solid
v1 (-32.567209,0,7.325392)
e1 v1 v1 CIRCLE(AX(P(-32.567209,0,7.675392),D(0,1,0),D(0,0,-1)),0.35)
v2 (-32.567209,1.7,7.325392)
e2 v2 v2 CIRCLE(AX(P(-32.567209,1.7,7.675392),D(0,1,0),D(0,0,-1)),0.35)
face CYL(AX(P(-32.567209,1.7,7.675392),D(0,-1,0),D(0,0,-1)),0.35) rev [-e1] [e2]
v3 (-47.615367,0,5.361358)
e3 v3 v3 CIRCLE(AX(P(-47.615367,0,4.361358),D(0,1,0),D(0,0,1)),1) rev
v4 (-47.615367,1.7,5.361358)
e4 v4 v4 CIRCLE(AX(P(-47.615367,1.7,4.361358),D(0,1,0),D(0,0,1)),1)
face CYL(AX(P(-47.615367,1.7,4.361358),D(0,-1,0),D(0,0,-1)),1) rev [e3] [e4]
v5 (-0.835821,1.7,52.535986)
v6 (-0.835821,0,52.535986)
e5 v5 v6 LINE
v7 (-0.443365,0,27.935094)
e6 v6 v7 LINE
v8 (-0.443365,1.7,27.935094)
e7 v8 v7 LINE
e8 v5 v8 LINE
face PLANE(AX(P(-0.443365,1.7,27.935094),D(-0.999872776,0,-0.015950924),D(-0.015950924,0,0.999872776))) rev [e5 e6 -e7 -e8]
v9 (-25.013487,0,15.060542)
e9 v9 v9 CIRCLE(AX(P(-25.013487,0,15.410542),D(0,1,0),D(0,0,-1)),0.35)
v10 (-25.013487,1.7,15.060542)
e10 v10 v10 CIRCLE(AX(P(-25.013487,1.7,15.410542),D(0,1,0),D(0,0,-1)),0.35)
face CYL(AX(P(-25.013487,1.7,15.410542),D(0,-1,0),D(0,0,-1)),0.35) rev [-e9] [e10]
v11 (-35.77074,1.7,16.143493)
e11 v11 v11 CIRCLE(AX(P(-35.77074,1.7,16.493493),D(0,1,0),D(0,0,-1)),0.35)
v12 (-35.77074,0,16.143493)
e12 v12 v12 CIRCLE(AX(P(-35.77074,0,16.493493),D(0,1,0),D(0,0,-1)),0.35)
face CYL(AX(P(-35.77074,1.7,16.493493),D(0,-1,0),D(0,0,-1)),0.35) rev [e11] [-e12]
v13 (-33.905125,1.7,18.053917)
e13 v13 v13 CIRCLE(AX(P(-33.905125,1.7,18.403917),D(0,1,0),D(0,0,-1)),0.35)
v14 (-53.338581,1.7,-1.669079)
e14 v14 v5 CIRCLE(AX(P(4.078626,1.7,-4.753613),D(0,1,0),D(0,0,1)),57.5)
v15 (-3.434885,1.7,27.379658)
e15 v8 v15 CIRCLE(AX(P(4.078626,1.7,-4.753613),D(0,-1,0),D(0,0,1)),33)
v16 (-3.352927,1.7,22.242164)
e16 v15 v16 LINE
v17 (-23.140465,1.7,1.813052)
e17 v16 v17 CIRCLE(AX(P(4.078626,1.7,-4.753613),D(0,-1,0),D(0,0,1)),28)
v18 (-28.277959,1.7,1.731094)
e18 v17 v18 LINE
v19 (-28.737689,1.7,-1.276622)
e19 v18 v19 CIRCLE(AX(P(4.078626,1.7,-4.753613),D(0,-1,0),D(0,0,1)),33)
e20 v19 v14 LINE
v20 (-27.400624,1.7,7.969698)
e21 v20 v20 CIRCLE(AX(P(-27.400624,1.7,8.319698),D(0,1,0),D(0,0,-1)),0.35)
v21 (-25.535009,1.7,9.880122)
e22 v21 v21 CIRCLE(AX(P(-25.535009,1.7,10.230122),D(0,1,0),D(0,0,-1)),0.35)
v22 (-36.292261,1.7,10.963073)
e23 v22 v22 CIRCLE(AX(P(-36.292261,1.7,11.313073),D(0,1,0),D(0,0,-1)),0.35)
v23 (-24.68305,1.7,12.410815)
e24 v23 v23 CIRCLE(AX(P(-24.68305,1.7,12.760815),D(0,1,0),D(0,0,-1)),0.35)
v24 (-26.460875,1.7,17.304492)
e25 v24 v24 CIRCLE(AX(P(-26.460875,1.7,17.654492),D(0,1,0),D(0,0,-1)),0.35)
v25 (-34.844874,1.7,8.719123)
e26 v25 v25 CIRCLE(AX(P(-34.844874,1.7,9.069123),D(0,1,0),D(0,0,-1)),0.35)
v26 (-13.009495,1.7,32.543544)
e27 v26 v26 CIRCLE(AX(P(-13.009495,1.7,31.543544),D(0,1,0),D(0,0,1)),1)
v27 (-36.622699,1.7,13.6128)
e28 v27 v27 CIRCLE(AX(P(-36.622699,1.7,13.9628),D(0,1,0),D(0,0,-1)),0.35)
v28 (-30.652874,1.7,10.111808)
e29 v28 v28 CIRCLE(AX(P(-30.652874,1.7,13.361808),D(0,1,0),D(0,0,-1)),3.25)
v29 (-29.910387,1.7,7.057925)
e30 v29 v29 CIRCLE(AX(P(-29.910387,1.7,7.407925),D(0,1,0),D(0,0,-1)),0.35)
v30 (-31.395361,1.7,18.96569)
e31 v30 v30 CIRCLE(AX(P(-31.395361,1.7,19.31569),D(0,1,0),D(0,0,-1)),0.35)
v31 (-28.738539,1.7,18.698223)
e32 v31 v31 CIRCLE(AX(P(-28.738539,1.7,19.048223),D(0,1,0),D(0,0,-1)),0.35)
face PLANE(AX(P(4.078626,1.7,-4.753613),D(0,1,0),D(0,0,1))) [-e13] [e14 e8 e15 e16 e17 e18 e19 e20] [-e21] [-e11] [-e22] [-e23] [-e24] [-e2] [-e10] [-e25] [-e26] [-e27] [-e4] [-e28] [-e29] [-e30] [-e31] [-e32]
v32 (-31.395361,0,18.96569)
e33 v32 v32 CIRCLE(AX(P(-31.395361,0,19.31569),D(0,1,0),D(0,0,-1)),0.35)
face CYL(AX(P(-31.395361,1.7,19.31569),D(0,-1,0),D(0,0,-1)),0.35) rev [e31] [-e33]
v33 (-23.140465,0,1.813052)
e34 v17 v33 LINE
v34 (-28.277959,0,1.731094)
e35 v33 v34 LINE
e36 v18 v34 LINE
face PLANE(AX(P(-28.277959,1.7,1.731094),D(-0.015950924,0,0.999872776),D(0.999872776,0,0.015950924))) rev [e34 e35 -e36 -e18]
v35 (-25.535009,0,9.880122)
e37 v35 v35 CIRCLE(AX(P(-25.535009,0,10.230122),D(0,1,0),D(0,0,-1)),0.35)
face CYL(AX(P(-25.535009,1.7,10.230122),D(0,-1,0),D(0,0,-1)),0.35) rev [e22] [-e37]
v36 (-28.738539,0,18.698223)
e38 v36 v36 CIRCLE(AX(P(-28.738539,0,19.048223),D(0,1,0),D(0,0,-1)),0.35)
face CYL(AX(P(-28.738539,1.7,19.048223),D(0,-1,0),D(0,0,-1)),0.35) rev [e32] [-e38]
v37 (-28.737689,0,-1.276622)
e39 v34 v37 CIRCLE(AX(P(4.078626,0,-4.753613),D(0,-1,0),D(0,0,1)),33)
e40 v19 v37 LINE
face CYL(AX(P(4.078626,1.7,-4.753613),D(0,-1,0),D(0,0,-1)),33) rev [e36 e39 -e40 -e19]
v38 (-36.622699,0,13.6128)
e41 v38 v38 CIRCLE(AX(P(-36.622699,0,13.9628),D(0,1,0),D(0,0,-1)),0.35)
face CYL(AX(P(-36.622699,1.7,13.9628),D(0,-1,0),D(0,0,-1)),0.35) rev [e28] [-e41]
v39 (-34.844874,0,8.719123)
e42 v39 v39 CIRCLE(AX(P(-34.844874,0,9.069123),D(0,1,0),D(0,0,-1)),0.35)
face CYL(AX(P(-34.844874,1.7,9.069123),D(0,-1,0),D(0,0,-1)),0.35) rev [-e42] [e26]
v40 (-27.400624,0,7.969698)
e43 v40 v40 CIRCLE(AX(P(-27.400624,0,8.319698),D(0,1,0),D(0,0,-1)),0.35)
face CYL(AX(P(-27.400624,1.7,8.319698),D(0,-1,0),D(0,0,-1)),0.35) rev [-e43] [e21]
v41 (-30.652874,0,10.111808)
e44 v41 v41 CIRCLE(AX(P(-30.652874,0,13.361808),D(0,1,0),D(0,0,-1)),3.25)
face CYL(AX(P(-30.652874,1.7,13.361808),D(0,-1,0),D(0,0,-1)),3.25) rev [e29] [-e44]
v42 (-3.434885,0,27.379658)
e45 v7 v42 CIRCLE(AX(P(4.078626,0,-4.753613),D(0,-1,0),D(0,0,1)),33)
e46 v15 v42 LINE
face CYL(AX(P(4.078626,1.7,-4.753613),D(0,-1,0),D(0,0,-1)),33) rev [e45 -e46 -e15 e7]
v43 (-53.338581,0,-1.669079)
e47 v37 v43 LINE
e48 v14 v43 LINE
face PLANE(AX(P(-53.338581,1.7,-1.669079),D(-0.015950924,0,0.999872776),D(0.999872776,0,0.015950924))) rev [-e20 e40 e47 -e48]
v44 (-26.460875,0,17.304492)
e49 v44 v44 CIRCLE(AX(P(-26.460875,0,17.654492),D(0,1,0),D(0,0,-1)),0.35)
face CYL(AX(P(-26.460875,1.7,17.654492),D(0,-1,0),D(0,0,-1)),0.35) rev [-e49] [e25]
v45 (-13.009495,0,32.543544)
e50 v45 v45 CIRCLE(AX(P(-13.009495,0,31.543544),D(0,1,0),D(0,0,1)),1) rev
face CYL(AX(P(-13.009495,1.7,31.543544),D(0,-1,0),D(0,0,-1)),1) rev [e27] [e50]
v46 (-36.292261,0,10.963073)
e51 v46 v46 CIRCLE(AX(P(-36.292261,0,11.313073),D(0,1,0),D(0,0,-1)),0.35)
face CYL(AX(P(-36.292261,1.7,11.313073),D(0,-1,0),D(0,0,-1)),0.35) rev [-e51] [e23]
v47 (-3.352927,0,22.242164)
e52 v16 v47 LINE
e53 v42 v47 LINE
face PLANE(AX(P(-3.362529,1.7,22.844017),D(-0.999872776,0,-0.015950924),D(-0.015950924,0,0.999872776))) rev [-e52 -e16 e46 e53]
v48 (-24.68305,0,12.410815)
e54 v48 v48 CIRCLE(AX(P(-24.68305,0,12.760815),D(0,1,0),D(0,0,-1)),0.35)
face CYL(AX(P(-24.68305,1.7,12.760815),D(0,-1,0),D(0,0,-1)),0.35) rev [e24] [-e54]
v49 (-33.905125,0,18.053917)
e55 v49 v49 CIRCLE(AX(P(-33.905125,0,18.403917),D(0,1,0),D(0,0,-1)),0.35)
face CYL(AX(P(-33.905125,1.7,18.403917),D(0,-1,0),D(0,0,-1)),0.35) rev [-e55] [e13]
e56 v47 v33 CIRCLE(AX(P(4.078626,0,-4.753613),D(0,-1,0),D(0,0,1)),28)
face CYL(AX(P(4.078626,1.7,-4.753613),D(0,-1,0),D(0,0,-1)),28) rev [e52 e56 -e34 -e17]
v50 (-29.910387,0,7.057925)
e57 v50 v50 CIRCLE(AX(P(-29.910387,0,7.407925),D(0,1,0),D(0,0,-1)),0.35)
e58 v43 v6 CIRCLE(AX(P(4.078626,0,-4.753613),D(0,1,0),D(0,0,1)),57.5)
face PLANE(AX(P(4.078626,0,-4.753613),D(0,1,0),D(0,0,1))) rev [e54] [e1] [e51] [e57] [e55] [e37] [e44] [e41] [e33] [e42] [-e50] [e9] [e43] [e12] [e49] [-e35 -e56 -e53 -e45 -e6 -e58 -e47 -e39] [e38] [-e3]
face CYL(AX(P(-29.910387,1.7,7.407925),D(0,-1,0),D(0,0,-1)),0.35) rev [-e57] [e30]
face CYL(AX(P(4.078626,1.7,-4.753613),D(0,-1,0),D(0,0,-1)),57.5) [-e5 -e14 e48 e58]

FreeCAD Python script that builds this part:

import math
import FreeCAD as App
import Part
import Sketcher
from FreeCAD import Vector
Q = App.Units.Quantity

doc = App.newDocument("Part")
body = doc.addObject("PartDesign::Body", "Body")

sketch1 = body.newObject("Sketcher::SketchObject", "Sketch")
sketch1.AttachmentSupport = (doc.getObject("XZ_Plane"), [""])
sketch1.MapMode = "FlatFace"
sketch1.addGeometry(Part.ArcOfCircle(Part.Circle(Vector(4.08, -4.75, 0), Vector(0, 0, 1), 33), math.radians(97.88), math.radians(103.16)), False)
sketch1.addGeometry(Part.LineSegment(Vector(-3.43, 27.38, 0), Vector(-3.35, 22.24, 0)), False)
sketch1.addGeometry(Part.ArcOfCircle(Part.Circle(Vector(4.08, -4.75, 0), Vector(0, 0, 1), 28), math.radians(105), math.radians(166)), False)
sketch1.addGeometry(Part.LineSegment(Vector(-23.14, 1.81, 0), Vector(-28.28, 1.73, 0)), False)
sketch1.addGeometry(Part.ArcOfCircle(Part.Circle(Vector(4.08, -4.75, 0), Vector(0, 0, 1), 33), math.radians(168.67), math.radians(173.95)), False)
sketch1.addGeometry(Part.LineSegment(Vector(-28.74, -1.28, 0), Vector(-53.34, -1.67, 0)), False)
sketch1.addGeometry(Part.ArcOfCircle(Part.Circle(Vector(4.08, -4.75, 0), Vector(0, 0, 1), 57.5), math.radians(95), math.radians(177)), False)
sketch1.addGeometry(Part.LineSegment(Vector(-0.84, 52.54, 0), Vector(-0.44, 27.94, 0)), False)
sketch1.addGeometry(Part.Circle(Vector(-26.46, 17.65, 0), Vector(0, 0, 1), 0.35), False)
sketch1.addGeometry(Part.Circle(Vector(-28.74, 19.05, 0), Vector(0, 0, 1), 0.35), False)
sketch1.addGeometry(Part.Circle(Vector(-25.01, 15.41, 0), Vector(0, 0, 1), 0.35), False)
sketch1.addGeometry(Part.Circle(Vector(-31.4, 19.32, 0), Vector(0, 0, 1), 0.35), False)
sketch1.addGeometry(Part.Circle(Vector(-33.91, 18.4, 0), Vector(0, 0, 1), 0.35), False)
sketch1.addGeometry(Part.Circle(Vector(-35.77, 16.49, 0), Vector(0, 0, 1), 0.35), False)
sketch1.addGeometry(Part.Circle(Vector(-30.65, 13.36, 0), Vector(0, 0, 1), 3.25), False)
sketch1.addGeometry(Part.Circle(Vector(-36.62, 13.96, 0), Vector(0, 0, 1), 0.35), False)
sketch1.addGeometry(Part.Circle(Vector(-24.68, 12.76, 0), Vector(0, 0, 1), 0.35), False)
sketch1.addGeometry(Part.Circle(Vector(-25.54, 10.23, 0), Vector(0, 0, 1), 0.35), False)
sketch1.addGeometry(Part.Circle(Vector(-27.4, 8.32, 0), Vector(0, 0, 1), 0.35), False)
sketch1.addGeometry(Part.Circle(Vector(-29.91, 7.41, 0), Vector(0, 0, 1), 0.35), False)
sketch1.addGeometry(Part.Circle(Vector(-36.29, 11.31, 0), Vector(0, 0, 1), 0.35), False)
sketch1.addGeometry(Part.Circle(Vector(-32.57, 7.68, 0), Vector(0, 0, 1), 0.35), False)
sketch1.addGeometry(Part.Circle(Vector(-34.84, 9.07, 0), Vector(0, 0, 1), 0.35), False)
sketch1.addConstraint(Sketcher.Constraint("Coincident", 0, 2, 1, 1))
sketch1.addConstraint(Sketcher.Constraint("Coincident", 1, 2, 2, 1))
sketch1.addConstraint(Sketcher.Constraint("Coincident", 2, 2, 3, 1))
sketch1.addConstraint(Sketcher.Constraint("Coincident", 3, 2, 4, 1))
sketch1.addConstraint(Sketcher.Constraint("Coincident", 4, 2, 5, 1))
sketch1.addConstraint(Sketcher.Constraint("Coincident", 5, 2, 6, 2))
sketch1.addConstraint(Sketcher.Constraint("Coincident", 6, 1, 7, 1))
sketch1.addConstraint(Sketcher.Constraint("Coincident", 7, 2, 0, 1))
sketch1.addConstraint(Sketcher.Constraint("Coincident", 2, 3, 0, 3))
sketch1.addConstraint(Sketcher.Constraint("Coincident", 4, 3, 0, 3))
sketch1.addConstraint(Sketcher.Constraint("Coincident", 6, 3, 0, 3))
sketch1.addConstraint(Sketcher.Constraint("Equal", 0, 4))
sketch1.addConstraint(Sketcher.Constraint("Equal", 8, 9))
sketch1.addConstraint(Sketcher.Constraint("Equal", 9, 10))
sketch1.addConstraint(Sketcher.Constraint("Equal", 10, 11))
sketch1.addConstraint(Sketcher.Constraint("Equal", 11, 12))
sketch1.addConstraint(Sketcher.Constraint("Equal", 12, 13))
sketch1.addConstraint(Sketcher.Constraint("Equal", 13, 15))
sketch1.addConstraint(Sketcher.Constraint("Equal", 15, 16))
sketch1.addConstraint(Sketcher.Constraint("Equal", 16, 17))
sketch1.addConstraint(Sketcher.Constraint("Equal", 17, 18))
sketch1.addConstraint(Sketcher.Constraint("Equal", 18, 19))
sketch1.addConstraint(Sketcher.Constraint("Equal", 19, 20))
sketch1.addConstraint(Sketcher.Constraint("Equal", 20, 21))
sketch1.addConstraint(Sketcher.Constraint("Equal", 21, 22))
sketch1.addConstraint(Sketcher.Constraint("Perpendicular", 1, 3))
sketch1.addConstraint(Sketcher.Constraint("Parallel", 3, 5))
sketch1.addConstraint(Sketcher.Constraint("Perpendicular", 5, 7))
sketch1.addConstraint(Sketcher.Constraint("Equal", 1, 3))
sketch1.addConstraint(Sketcher.Constraint("Equal", 5, 7))
sketch1.addConstraint(Sketcher.Constraint("Radius", 0, Q("33 mm")))
sketch1.addConstraint(Sketcher.Constraint("Radius", 2, Q("28 mm")))
sketch1.addConstraint(Sketcher.Constraint("Diameter", 8, Q("0.7 mm")))
sketch1.addConstraint(Sketcher.Constraint("Diameter", 14, Q("6.5 mm")))
sketch1.addConstraint(Sketcher.Constraint("Radius", 6, Q("57.5 mm")))
sketch1.addConstraint(Sketcher.Constraint("DistanceY", 13, 3, 8, 3, Q("1.160999 mm")))
sketch1.addConstraint(Sketcher.Constraint("DistanceX", 22, 3, 14, 3, Q("4.191999 mm")))
sketch1.addConstraint(Sketcher.Constraint("DistanceX", 15, 3, -1, 1, Q("36.622699 mm")))
sketch1.addConstraint(Sketcher.Constraint("DistanceY", -1, 1, 15, 3, Q("13.9628 mm")))
sketch1.addConstraint(Sketcher.Constraint("DistanceY", -1, 1, 18, 3, Q("8.319698 mm")))
sketch1.addConstraint(Sketcher.Constraint("DistanceX", 8, 3, 4, 3, Q("30.539501 mm")))
sketch1.addConstraint(Sketcher.Constraint("DistanceX", 13, 3, 9, 3, Q("7.032201 mm")))
sketch1.addConstraint(Sketcher.Constraint("DistanceY", 17, 3, 9, 3, Q("8.818101 mm")))
sketch1.addConstraint(Sketcher.Constraint("DistanceX", 19, 3, 10, 3, Q("4.8969 mm")))
sketch1.addConstraint(Sketcher.Constraint("DistanceX", 10, 3, 0, 2, Q("21.578602 mm")))
sketch1.addConstraint(Sketcher.Constraint("DistanceX", 19, 3, 4, 2, Q("1.172698 mm")))
sketch1.addConstraint(Sketcher.Constraint("DistanceY", 5, 2, 22, 3, Q("10.738202 mm")))
sketch1.addConstraint(Sketcher.Constraint("DistanceY", 8, 3, 7, 2, Q("10.280602 mm")))
sketch1.addConstraint(Sketcher.Constraint("DistanceX", 9, 3, -1, 1, Q("28.738539 mm")))
sketch1.addConstraint(Sketcher.Constraint("DistanceX", 11, 3, -1, 1, Q("31.395361 mm")))
sketch1.addConstraint(Sketcher.Constraint("DistanceY", -1, 1, 11, 3, Q("19.31569 mm")))
sketch1.addConstraint(Sketcher.Constraint("DistanceX", 16, 3, -1, 1, Q("24.68305 mm")))
sketch1.addConstraint(Sketcher.Constraint("DistanceX", 17, 3, -1, 1, Q("25.535009 mm")))
sketch1.addConstraint(Sketcher.Constraint("DistanceX", 20, 3, -1, 1, Q("36.292261 mm")))
sketch1.addConstraint(Sketcher.Constraint("DistanceX", 21, 3, -1, 1, Q("32.567209 mm")))
sketch1.addConstraint(Sketcher.Constraint("DistanceY", -1, 1, 0, 2, Q("27.379658 mm")))
sketch1.addConstraint(Sketcher.Constraint("DistanceX", 3, 2, -1, 1, Q("28.277959 mm")))
sketch1.addConstraint(Sketcher.Constraint("DistanceX", 4, 2, -1, 1, Q("28.737689 mm")))
sketch1.addConstraint(Sketcher.Constraint("DistanceY", 4, 2, -1, 1, Q("1.276622 mm")))
sketch1.addConstraint(Sketcher.Constraint("DistanceY", 8, 3, 9, 3, Q("1.393731 mm")))
sketch1.addConstraint(Sketcher.Constraint("DistanceY", 10, 3, 8, 3, Q("2.24395 mm")))
sketch1.addConstraint(Sketcher.Constraint("DistanceX", 12, 3, 8, 3, Q("7.44425 mm")))
sketch1.addConstraint(Sketcher.Constraint("DistanceY", 4, 3, 12, 3, Q("23.157531 mm")))
sketch1.addConstraint(Sketcher.Constraint("DistanceX", 12, 3, 14, 3, Q("3.25225 mm")))
sketch1.addConstraint(Sketcher.Constraint("DistanceY", 14, 3, 12, 3, Q("5.042109 mm")))
sketch1.addConstraint(Sketcher.Constraint("DistanceX", 14, 3, 18, 3, Q("3.25225 mm")))
sketch1.addConstraint(Sketcher.Constraint("DistanceY", 19, 3, 16, 3, Q("5.35289 mm")))
sketch1.addConstraint(Sketcher.Constraint("DistanceY", 20, 3, 13, 3, Q("5.18042 mm")))
sketch1.addConstraint(Sketcher.Constraint("DistanceY", 21, 3, 20, 3, Q("3.637681 mm")))
sketch1.addConstraint(Sketcher.Constraint("DistanceY", 16, 3, 1, 2, Q("9.481349 mm")))
pad1 = body.newObject("PartDesign::Pad", "Pad")
pad1.Profile = sketch1
pad1.Length = 1.7
pad1.Reversed = True

sketch2 = body.newObject("Sketcher::SketchObject", "Sketch001")
sketch2.AttachmentSupport = (doc.getObject("XZ_Plane"), [""])
sketch2.MapMode = "FlatFace"
sketch2.AttachmentOffset = App.Placement(Vector(0, 0, 51.28704), App.Rotation())
sketch2.addGeometry(Part.Circle(Vector(-13, 31.5, 0), Vector(0, 0, 1), 1), False)
sketch2.addGeometry(Part.Circle(Vector(-47.6, 4.4, 0), Vector(0, 0, 1), 1), False)
sketch2.addConstraint(Sketcher.Constraint("Equal", 0, 1))
sketch2.addConstraint(Sketcher.Constraint("Diameter", 0, Q("2 mm")))
sketch2.addConstraint(Sketcher.Constraint("DistanceX", 0, 3, -1, 1, Q("13.009495 mm")))
sketch2.addConstraint(Sketcher.Constraint("DistanceY", -1, 1, 0, 3, Q("31.543544 mm")))
sketch2.addConstraint(Sketcher.Constraint("DistanceX", 1, 3, -1, 1, Q("47.615367 mm")))
sketch2.addConstraint(Sketcher.Constraint("DistanceY", -1, 1, 1, 3, Q("4.361358 mm")))
pocket1 = body.newObject("PartDesign::Pocket", "Pocket")
pocket1.Profile = sketch2
pocket1.Type = "ThroughAll"
pocket1.Midplane = True

doc.recompute()
